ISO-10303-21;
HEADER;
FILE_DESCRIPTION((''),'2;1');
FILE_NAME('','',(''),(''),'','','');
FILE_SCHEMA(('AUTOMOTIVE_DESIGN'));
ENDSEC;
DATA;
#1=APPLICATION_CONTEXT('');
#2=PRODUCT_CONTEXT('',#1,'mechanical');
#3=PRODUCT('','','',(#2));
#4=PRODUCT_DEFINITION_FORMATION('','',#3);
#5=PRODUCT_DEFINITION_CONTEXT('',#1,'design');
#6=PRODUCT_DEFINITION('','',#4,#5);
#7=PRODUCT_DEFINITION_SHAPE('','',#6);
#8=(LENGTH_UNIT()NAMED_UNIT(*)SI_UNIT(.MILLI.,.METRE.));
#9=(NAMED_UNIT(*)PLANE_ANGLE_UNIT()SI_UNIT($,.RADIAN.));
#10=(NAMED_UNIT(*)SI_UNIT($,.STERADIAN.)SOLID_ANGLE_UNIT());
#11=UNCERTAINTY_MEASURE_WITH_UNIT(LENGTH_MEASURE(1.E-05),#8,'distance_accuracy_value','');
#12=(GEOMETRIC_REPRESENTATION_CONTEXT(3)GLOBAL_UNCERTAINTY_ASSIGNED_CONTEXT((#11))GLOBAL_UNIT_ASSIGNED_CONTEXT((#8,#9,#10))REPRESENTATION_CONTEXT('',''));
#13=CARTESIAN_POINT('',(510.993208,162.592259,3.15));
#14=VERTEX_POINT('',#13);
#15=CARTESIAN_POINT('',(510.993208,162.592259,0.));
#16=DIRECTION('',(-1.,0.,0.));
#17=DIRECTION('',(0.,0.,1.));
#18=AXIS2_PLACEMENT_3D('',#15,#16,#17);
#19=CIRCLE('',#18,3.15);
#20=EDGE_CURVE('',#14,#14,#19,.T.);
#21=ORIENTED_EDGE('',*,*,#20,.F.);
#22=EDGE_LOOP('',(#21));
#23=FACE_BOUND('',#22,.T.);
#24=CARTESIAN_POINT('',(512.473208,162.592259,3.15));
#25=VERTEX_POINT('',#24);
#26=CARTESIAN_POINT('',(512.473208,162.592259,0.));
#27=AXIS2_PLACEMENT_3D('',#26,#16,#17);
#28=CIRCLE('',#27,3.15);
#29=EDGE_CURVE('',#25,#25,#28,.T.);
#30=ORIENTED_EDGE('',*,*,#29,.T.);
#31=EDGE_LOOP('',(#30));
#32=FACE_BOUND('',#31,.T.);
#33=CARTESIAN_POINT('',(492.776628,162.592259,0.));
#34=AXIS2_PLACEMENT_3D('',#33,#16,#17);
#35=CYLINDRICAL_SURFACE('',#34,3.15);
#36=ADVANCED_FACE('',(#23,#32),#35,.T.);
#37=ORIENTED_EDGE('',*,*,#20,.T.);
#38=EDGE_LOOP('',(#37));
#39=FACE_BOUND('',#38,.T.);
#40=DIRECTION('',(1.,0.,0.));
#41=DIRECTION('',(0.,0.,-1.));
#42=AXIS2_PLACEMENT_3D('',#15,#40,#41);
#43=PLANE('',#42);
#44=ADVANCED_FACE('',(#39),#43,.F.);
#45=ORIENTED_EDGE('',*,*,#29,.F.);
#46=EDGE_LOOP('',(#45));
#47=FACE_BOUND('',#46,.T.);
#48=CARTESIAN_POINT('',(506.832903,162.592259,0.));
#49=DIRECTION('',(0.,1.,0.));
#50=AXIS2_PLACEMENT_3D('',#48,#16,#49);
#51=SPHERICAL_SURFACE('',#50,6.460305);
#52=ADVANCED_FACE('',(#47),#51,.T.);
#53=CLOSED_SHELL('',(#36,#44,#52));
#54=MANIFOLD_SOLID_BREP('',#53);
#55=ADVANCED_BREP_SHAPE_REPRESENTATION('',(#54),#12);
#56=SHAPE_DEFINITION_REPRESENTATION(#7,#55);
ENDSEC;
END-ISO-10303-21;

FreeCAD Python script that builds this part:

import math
import FreeCAD as App
import Part
import Sketcher
from FreeCAD import Vector
Q = App.Units.Quantity

doc = App.newDocument("Part")
body = doc.addObject("PartDesign::Body", "Body")

sketch1 = doc.addObject("Sketcher::SketchObject", "Sketch")
body.addObject(sketch1)
sketch1.AttachmentSupport = (doc.XY_Plane, [""])
sketch1.MapMode = "FlatFace"
sketch1.addGeometry(Part.LineSegment(Vector(511, 165.7, 0), Vector(511, 162.6, 0)), False)
sketch1.addGeometry(Part.LineSegment(Vector(511, 162.6, 0), Vector(513.3, 162.6, 0)), False)
sketch1.addGeometry(Part.ArcOfCircle(Part.Circle(Vector(506.8, 162.6, 0), Vector(0, 0, 1), 6.5), math.radians(0), math.radians(29)), False)
sketch1.addGeometry(Part.LineSegment(Vector(512.5, 165.7, 0), Vector(511, 165.7, 0)), False)
sketch1.addGeometry(Part.LineSegment(Vector(506.8, 162.6, 0), Vector(513.3, 162.6, 0)), True)
sketch1.addConstraint(Sketcher.Constraint("Coincident", 0, 2, 1, 1))
sketch1.addConstraint(Sketcher.Constraint("Coincident", 1, 2, 2, 1))
sketch1.addConstraint(Sketcher.Constraint("Coincident", 2, 2, 3, 1))
sketch1.addConstraint(Sketcher.Constraint("Coincident", 3, 2, 0, 1))
sketch1.addConstraint(Sketcher.Constraint("Vertical", 0))
sketch1.addConstraint(Sketcher.Constraint("Horizontal", 1))
sketch1.addConstraint(Sketcher.Constraint("Horizontal", 3))
sketch1.addConstraint(Sketcher.Constraint("Horizontal", 4))
sketch1.addConstraint(Sketcher.Constraint("Coincident", 4, 1, 2, 3))
sketch1.addConstraint(Sketcher.Constraint("Coincident", 4, 2, 1, 2))
sketch1.addConstraint(Sketcher.Constraint("DistanceX", 1, 1, 1, 2, Q("2.3 mm")))
sketch1.addConstraint(Sketcher.Constraint("DistanceX", 3, 2, 3, 1, Q("1.48 mm")))
sketch1.addConstraint(Sketcher.Constraint("DistanceY", 0, 2, 0, 1, Q("3.15 mm")))
sketch1.addConstraint(Sketcher.Constraint("DistanceY", -1, 1, 2, 3, Q("162.592259 mm")))
sketch1.addConstraint(Sketcher.Constraint("DistanceX", -1, 1, 2, 3, Q("506.832903 mm")))
revolution = doc.addObject("PartDesign::Revolution", "Revolution")
body.addObject(revolution)
revolution.Profile = sketch1
revolution.ReferenceAxis = (sketch1, ["Axis0"])
revolution.Angle = 360

doc.recompute()
